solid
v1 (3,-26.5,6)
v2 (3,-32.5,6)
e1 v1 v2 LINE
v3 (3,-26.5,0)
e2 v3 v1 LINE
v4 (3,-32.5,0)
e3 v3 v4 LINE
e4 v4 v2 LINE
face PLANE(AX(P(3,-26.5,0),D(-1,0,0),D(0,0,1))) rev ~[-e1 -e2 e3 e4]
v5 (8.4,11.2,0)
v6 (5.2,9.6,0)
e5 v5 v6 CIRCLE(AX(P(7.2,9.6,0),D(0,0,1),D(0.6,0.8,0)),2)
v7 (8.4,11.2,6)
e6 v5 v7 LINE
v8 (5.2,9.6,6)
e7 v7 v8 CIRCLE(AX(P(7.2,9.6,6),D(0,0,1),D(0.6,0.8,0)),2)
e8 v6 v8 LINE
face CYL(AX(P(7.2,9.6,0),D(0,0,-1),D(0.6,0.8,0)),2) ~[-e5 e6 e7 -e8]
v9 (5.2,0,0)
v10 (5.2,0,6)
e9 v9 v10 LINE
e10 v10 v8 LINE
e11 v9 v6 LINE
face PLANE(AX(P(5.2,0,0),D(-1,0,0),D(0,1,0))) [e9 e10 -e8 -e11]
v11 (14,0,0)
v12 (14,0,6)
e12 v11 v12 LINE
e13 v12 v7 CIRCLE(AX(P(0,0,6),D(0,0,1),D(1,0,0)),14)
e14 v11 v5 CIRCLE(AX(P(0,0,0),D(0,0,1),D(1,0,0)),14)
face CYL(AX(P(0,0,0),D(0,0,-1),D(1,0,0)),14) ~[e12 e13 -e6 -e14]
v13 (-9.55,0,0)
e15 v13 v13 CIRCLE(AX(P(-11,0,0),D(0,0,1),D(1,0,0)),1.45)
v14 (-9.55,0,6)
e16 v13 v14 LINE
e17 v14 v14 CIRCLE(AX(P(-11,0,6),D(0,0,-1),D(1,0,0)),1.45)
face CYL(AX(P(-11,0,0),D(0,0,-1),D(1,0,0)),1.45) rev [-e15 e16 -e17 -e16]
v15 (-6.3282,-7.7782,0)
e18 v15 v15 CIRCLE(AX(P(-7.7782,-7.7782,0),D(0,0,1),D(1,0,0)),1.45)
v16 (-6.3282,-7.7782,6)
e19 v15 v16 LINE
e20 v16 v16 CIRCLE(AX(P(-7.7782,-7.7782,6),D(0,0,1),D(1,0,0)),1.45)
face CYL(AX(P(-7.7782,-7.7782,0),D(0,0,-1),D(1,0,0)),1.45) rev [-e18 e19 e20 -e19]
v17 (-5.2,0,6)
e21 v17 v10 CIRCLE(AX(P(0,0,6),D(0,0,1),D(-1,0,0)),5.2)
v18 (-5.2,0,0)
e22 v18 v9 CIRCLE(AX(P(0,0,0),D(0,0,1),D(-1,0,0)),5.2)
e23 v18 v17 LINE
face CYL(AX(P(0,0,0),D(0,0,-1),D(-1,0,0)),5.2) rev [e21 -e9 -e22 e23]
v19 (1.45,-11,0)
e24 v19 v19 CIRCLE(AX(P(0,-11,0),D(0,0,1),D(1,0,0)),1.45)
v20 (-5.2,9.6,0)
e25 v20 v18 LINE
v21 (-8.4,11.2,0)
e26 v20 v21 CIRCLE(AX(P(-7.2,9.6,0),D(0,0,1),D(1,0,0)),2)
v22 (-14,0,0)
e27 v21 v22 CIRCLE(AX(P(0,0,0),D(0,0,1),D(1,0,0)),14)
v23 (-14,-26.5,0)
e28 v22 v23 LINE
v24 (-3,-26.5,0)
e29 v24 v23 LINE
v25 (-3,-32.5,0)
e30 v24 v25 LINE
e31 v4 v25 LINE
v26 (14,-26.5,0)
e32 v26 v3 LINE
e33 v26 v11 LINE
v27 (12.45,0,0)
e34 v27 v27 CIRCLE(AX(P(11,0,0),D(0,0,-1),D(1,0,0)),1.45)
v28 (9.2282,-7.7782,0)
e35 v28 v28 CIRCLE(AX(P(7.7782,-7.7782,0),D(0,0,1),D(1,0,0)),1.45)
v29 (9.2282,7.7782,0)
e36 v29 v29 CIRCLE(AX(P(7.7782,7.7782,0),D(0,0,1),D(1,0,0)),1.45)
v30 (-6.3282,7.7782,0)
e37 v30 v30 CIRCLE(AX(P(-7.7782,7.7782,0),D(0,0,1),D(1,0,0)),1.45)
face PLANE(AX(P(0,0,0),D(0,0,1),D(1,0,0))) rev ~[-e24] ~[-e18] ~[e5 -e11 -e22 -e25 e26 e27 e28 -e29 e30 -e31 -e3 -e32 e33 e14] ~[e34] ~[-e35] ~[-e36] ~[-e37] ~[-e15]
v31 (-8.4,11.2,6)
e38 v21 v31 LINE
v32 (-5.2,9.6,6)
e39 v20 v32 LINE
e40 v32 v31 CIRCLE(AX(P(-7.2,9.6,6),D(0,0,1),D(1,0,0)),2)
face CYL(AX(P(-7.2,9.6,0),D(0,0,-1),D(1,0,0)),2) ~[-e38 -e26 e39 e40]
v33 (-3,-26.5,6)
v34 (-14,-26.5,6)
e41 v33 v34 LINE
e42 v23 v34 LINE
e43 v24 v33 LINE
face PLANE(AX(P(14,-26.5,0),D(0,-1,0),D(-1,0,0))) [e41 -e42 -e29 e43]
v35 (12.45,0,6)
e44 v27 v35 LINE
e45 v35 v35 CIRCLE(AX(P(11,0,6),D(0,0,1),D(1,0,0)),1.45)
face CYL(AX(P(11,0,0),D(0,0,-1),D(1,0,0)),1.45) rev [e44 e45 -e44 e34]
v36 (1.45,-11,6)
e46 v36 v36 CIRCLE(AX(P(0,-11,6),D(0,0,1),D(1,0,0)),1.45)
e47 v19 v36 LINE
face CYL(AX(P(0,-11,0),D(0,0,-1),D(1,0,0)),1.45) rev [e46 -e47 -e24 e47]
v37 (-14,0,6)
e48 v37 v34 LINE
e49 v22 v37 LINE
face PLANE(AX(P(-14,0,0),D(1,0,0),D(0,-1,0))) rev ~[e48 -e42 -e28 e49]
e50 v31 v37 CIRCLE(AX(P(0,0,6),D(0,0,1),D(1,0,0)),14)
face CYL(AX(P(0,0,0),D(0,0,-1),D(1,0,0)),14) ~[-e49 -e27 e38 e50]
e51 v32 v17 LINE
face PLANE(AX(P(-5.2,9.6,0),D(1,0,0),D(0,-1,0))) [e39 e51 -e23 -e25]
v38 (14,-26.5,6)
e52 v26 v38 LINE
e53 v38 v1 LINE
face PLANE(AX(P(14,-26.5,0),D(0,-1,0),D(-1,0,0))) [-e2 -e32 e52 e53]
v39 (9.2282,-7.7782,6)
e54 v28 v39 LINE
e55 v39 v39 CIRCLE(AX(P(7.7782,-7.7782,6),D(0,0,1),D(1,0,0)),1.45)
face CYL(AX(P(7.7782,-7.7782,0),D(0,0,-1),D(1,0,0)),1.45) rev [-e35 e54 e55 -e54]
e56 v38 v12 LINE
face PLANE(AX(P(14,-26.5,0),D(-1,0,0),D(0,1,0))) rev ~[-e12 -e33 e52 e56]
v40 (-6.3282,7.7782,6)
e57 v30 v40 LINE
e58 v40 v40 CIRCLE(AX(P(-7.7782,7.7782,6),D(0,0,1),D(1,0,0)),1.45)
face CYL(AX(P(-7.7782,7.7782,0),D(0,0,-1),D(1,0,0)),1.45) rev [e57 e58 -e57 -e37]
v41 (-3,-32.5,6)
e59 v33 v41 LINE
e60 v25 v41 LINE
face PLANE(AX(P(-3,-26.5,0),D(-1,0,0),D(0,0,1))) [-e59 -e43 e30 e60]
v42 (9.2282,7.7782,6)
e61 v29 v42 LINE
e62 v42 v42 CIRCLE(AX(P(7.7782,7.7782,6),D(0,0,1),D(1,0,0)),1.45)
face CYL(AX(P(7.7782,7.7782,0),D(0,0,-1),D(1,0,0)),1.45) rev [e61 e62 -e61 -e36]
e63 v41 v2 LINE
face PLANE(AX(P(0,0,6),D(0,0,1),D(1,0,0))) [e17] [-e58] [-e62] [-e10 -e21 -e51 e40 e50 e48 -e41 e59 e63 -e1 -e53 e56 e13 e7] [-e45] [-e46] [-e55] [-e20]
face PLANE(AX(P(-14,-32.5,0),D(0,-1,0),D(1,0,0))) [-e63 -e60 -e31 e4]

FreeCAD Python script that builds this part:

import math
import FreeCAD as App
import Part
import Sketcher

V = App.Vector


def add_polygon(sketch, points):
    """Adds a closed chain of lines whose ends are joined by coincident constraints."""
    first, n = sketch.GeometryCount, len(points)
    for a, b in zip(points, points[1:] + points[:1]):
        sketch.addGeometry(Part.LineSegment(App.Vector(*a, 0), App.Vector(*b, 0)), False)
    for i in range(n):
        sketch.addConstraint(Sketcher.Constraint("Coincident", first + i, 2, first + (i + 1) % n, 1))

doc = App.newDocument("Part")
params = doc.addObject("Spreadsheet::Sheet", "Params")
for row, (alias, value) in enumerate([
    ("sketch1_radius", "2 mm"),
    ("sketch1_radius2", "14 mm"),
    ("sketch1_diameter", "2.9 mm"),
    ("sketch1_radius3", "5.2 mm"),
    ("sketch1_height", "26.5 mm"),
    ("pad1_length", "6 mm"),
    ("pad2_length", "6 mm"),
], start=1):
    params.set(f"A{row}", alias)
    params.set(f"B{row}", "=" + value)
    params.setAlias(f"B{row}", alias)

body = doc.addObject("PartDesign::Body", "Body")

# Sketch on XY plane
sketch1 = body.newObject("Sketcher::SketchObject", "Sketch")
sketch1.AttachmentSupport = (doc.getObject("XY_Plane"), [""])
sketch1.MapMode = "FlatFace"
sketch1.addGeometry([
    Part.LineSegment(V(5.2, 9.6, 0), V(5.2, 0, 0)),  # 0
    Part.ArcOfCircle(Part.Circle(V(0, 0, 0), V(0, 0, 1), 5.2), math.radians(180), math.radians(360)),  # 1
    Part.LineSegment(V(-5.2, 0, 0), V(-5.2, 9.6, 0)),  # 2
    Part.ArcOfCircle(Part.Circle(V(-7.2, 9.6, 0), V(0, 0, 1), 2), math.radians(0), math.radians(127)),  # 3
    Part.ArcOfCircle(Part.Circle(V(0, 0, 0), V(0, 0, 1), 14), math.radians(127), math.radians(180)),  # 4
    Part.LineSegment(V(-14, 0, 0), V(-14, -26.5, 0)),  # 5
    Part.LineSegment(V(-14, -26.5, 0), V(14, -26.5, 0)),  # 6
    Part.LineSegment(V(14, -26.5, 0), V(14, 0, 0)),  # 7
    Part.ArcOfCircle(Part.Circle(V(0, 0, 0), V(0, 0, 1), 14), math.radians(0), math.radians(53)),  # 8
    Part.ArcOfCircle(Part.Circle(V(7.2, 9.6, 0), V(0, 0, 1), 2), math.radians(53), math.radians(180)),  # 9
    Part.Circle(V(11, 0, 0), V(0, 0, 1), 1.4),  # 10
    Part.Circle(V(7.8, 7.8, 0), V(0, 0, 1), 1.4),  # 11
    Part.Circle(V(-11, 0, 0), V(0, 0, 1), 1.4),  # 12
    Part.Circle(V(-7.8, -7.8, 0), V(0, 0, 1), 1.4),  # 13
    Part.Circle(V(7.8, -7.8, 0), V(0, 0, 1), 1.4),  # 14
    Part.Circle(V(0, -11, 0), V(0, 0, 1), 1.4),  # 15
    Part.Circle(V(-7.8, 7.8, 0), V(0, 0, 1), 1.4),  # 16
], False)
sketch1.addConstraint([
    Sketcher.Constraint("Tangent", 0, 2, 1, 2),
    Sketcher.Constraint("Tangent", 1, 1, 2, 1),
    Sketcher.Constraint("Tangent", 2, 2, 3, 1),
    Sketcher.Constraint("Tangent", 3, 2, 4, 1),
    Sketcher.Constraint("Tangent", 4, 2, 5, 1),
    Sketcher.Constraint("Coincident", 5, 2, 6, 1),
    Sketcher.Constraint("Coincident", 6, 2, 7, 1),
    Sketcher.Constraint("Tangent", 7, 2, 8, 1),
    Sketcher.Constraint("Tangent", 8, 2, 9, 1),
    Sketcher.Constraint("Tangent", 9, 2, 0, 1),
    Sketcher.Constraint("Vertical", 0),
    Sketcher.Constraint("Vertical", 2),
    Sketcher.Constraint("Vertical", 5),
    Sketcher.Constraint("Horizontal", 6),
    Sketcher.Constraint("Vertical", 7),
    Sketcher.Constraint("Coincident", 1, 3, -1, 1),
    Sketcher.Constraint("Coincident", 4, 3, -1, 1),
    Sketcher.Constraint("Coincident", 8, 3, -1, 1),
    Sketcher.Constraint("Equal", 4, 8),
    Sketcher.Constraint("Equal", 3, 9),
    Sketcher.Constraint("Equal", 10, 11),
    Sketcher.Constraint("Equal", 11, 12),
    Sketcher.Constraint("Equal", 12, 13),
    Sketcher.Constraint("Equal", 13, 14),
    Sketcher.Constraint("Equal", 14, 15),
    Sketcher.Constraint("Equal", 15, 16),
    Sketcher.Constraint("Symmetric", 10, 3, 12, 3, -1, 1),
    Sketcher.Constraint("Symmetric", 11, 3, 13, 3, -1, 1),
    Sketcher.Constraint("Symmetric", 14, 3, 16, 3, -1, 1),
    Sketcher.Constraint("Symmetric", 13, 3, 14, 3, -2),
    Sketcher.Constraint("PointOnObject", 10, 3, -1),
    Sketcher.Constraint("PointOnObject", 15, 3, -2),
    Sketcher.Constraint("Radius", 3, 2.0),
    Sketcher.Constraint("Radius", 4, 14.0),
    Sketcher.Constraint("Diameter", 10, 2.9),
    Sketcher.Constraint("Radius", 1, 5.2),
    Sketcher.Constraint("DistanceY", 5, 2, 5, 1, 26.5),
    Sketcher.Constraint("DistanceX", -1, 1, 10, 3, 11.0),
    Sketcher.Constraint("DistanceY", 15, 3, -1, 1, 11.0),
    Sketcher.Constraint("DistanceX", -1, 1, 11, 3, 7.7782),
    Sketcher.Constraint("DistanceY", -1, 1, 11, 3, 7.7782),
])
sketch1.setExpression("Constraints[32]", "Params.sketch1_radius")
sketch1.setExpression("Constraints[33]", "Params.sketch1_radius2")
sketch1.setExpression("Constraints[34]", "Params.sketch1_diameter")
sketch1.setExpression("Constraints[35]", "Params.sketch1_radius3")
sketch1.setExpression("Constraints[36]", "Params.sketch1_height")
pad1 = body.newObject("PartDesign::Pad", "Pad")
pad1.Profile = sketch1
pad1.setExpression("Length", "Params.pad1_length")

# Sketch on XZ plane
sketch2 = body.newObject("Sketcher::SketchObject", "Sketch001")
sketch2.AttachmentSupport = (doc.getObject("XZ_Plane"), [""])
sketch2.MapMode = "FlatFace"
sketch2.AttachmentOffset = App.Placement(V(0, 0, 26.5), App.Rotation())
add_polygon(sketch2, [(-3, 6), (-3, 0), (3, 0), (3, 6)])  # lines 0-3
sketch2.addConstraint([
    Sketcher.Constraint("Vertical", 0),
    Sketcher.Constraint("Horizontal", 1),
    Sketcher.Constraint("Vertical", 2),
    Sketcher.Constraint("Horizontal", 3),
    Sketcher.Constraint("Symmetric", 0, 2, 1, 2, -1, 1),
    Sketcher.Constraint("Equal", 3, 0),
    Sketcher.Constraint("DistanceX", 0, 2, -1, 1, 3.0),
])
pad2 = body.newObject("PartDesign::Pad", "Pad001")
pad2.Profile = sketch2
pad2.setExpression("Length", "Params.pad2_length")

doc.recompute()
